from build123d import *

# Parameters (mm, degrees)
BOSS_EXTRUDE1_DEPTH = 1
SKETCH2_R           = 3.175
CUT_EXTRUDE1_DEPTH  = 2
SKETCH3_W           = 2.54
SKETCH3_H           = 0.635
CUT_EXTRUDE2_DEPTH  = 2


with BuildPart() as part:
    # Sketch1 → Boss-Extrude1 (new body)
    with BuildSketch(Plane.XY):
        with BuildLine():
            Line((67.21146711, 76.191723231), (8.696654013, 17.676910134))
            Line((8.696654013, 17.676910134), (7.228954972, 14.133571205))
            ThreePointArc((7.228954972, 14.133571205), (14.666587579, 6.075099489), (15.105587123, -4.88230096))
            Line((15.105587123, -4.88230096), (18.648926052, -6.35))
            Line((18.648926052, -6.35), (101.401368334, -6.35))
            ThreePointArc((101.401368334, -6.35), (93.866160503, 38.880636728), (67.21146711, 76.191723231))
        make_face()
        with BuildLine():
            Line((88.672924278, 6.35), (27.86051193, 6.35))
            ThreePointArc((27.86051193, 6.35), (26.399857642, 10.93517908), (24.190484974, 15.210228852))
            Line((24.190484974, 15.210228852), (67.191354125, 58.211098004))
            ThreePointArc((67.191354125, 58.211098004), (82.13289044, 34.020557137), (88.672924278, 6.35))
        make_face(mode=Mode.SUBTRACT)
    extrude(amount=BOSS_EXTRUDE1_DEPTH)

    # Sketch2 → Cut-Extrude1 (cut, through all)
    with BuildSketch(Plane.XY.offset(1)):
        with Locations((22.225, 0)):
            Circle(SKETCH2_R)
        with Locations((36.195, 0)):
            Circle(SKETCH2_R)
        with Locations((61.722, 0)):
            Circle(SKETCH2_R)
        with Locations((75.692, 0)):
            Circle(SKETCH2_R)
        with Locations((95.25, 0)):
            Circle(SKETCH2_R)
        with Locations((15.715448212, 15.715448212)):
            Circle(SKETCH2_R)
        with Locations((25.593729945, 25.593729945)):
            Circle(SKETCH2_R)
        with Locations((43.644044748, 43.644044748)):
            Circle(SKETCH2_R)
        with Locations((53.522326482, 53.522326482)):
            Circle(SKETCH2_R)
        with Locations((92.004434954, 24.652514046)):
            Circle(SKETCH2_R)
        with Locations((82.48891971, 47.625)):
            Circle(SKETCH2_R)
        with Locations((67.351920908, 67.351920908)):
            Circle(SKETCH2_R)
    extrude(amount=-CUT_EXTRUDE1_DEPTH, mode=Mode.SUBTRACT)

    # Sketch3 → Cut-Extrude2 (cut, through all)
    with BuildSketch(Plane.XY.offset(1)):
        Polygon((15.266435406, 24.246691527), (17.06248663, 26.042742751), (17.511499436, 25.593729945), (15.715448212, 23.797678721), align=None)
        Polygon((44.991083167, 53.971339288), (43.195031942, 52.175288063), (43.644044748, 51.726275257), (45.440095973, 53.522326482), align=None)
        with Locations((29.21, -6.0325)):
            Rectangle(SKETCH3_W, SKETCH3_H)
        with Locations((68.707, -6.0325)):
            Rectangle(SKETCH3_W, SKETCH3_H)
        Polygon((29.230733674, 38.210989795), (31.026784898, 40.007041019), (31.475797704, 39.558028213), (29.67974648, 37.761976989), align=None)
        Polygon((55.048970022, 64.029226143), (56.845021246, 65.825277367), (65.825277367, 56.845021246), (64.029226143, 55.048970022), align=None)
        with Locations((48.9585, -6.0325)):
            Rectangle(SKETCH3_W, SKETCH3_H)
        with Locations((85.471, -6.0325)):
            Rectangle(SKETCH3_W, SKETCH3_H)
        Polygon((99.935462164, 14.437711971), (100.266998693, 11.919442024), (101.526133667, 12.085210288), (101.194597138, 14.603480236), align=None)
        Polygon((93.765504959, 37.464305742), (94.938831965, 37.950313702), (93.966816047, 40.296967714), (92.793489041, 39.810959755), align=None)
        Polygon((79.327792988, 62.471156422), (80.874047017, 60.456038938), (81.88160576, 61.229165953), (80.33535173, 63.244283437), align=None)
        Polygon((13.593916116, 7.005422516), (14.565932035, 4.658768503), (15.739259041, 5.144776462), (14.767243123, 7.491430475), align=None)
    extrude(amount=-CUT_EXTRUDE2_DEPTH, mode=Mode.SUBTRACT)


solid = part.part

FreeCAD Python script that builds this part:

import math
import FreeCAD as App
import Part
import Sketcher
Q = App.Units.Quantity


def add_polygon(sketch, points):
    """Adds a closed chain of lines whose ends are joined by coincident constraints."""
    first, n = sketch.GeometryCount, len(points)
    for a, b in zip(points, points[1:] + points[:1]):
        sketch.addGeometry(Part.LineSegment(App.Vector(*a, 0), App.Vector(*b, 0)), False)
    for i in range(n):
        sketch.addConstraint(Sketcher.Constraint("Coincident", first + i, 2, first + (i + 1) % n, 1))

doc = App.newDocument("Part")
params = doc.addObject("Spreadsheet::Sheet", "Params")
for row, (alias, value) in enumerate([
    ("sketch1_radius", "4 in"),
    ("sketch1_radius2", "3.5 in"),
    ("sketch1_radius3", "0.625 in"),
    ("sketch1_radius4", "1.125 in"),
    ("pad1_length", "1 mm"),
    ("sketch2_diameter", "0.25 in"),
    ("sketch3_width", "0.1 in"),
    ("sketch3_length", "0.1 in"),
    ("sketch3_length2", "0.5 in"),
    ("sketch3_length3", "0.05 in"),
    ("sketch3_height", "0.025 in"),
], start=1):
    params.set(f"A{row}", alias)
    params.set(f"B{row}", "=" + value)
    params.setAlias(f"B{row}", alias)

body = doc.addObject("PartDesign::Body", "Body")

sketch1 = body.newObject("Sketcher::SketchObject", "Sketch")
sketch1.AttachmentSupport = (doc.getObject("XY_Plane"), [""])
sketch1.MapMode = "FlatFace"
sketch1.addGeometry(Part.LineSegment(App.Vector(67.211467, 76.191723, 0), App.Vector(8.696654, 17.67691, 0)), False)
sketch1.addGeometry(Part.LineSegment(App.Vector(8.696654, 17.67691, 0), App.Vector(7.228955, 14.133571, 0)), False)
sketch1.addGeometry(Part.ArcOfCircle(Part.Circle(App.Vector(0, 0, 0), App.Vector(0, 0, 1), 15.875), math.radians(-17.911434), math.radians(62.911434)), False)
sketch1.addGeometry(Part.LineSegment(App.Vector(15.105587, -4.882301, 0), App.Vector(18.648926, -6.35, 0)), False)
sketch1.addGeometry(Part.LineSegment(App.Vector(18.648926, -6.35, 0), App.Vector(101.401368, -6.35, 0)), False)
sketch1.addGeometry(Part.ArcOfCircle(Part.Circle(App.Vector(0, 0, 0), App.Vector(0, 0, 1), 101.6), math.radians(-3.583322), math.radians(48.583322)), False)
sketch1.addGeometry(Part.ArcOfCircle(Part.Circle(App.Vector(0, 0, 0), App.Vector(0, 0, 1), 88.9), math.radians(4.096044), math.radians(40.903956)), False)
sketch1.addGeometry(Part.LineSegment(App.Vector(88.672924, 6.35, 0), App.Vector(27.860512, 6.35, 0)), False)
sketch1.addGeometry(Part.ArcOfCircle(Part.Circle(App.Vector(0, 0, 0), App.Vector(0, 0, 1), 28.575), math.radians(12.839588), math.radians(32.160412)), False)
sketch1.addGeometry(Part.LineSegment(App.Vector(24.190485, 15.210229, 0), App.Vector(67.191354, 58.211098, 0)), False)
sketch1.addConstraint(Sketcher.Constraint("Coincident", 0, 2, 1, 1))
sketch1.addConstraint(Sketcher.Constraint("Coincident", 1, 2, 2, 2))
sketch1.addConstraint(Sketcher.Constraint("Coincident", 2, 1, 3, 1))
sketch1.addConstraint(Sketcher.Constraint("Coincident", 3, 2, 4, 1))
sketch1.addConstraint(Sketcher.Constraint("Coincident", 4, 2, 5, 1))
sketch1.addConstraint(Sketcher.Constraint("Coincident", 5, 2, 0, 1))
sketch1.addConstraint(Sketcher.Constraint("Coincident", 6, 1, 7, 1))
sketch1.addConstraint(Sketcher.Constraint("Coincident", 7, 2, 8, 1))
sketch1.addConstraint(Sketcher.Constraint("Coincident", 8, 2, 9, 1))
sketch1.addConstraint(Sketcher.Constraint("Coincident", 9, 2, 6, 2))
sketch1.addConstraint(Sketcher.Constraint("Horizontal", 4))
sketch1.addConstraint(Sketcher.Constraint("Horizontal", 7))
sketch1.addConstraint(Sketcher.Constraint("Coincident", 2, 3, -1, 1))
sketch1.addConstraint(Sketcher.Constraint("Coincident", 5, 3, -1, 1))
sketch1.addConstraint(Sketcher.Constraint("Coincident", 6, 3, -1, 1))
sketch1.addConstraint(Sketcher.Constraint("Coincident", 8, 3, -1, 1))
sketch1.addConstraint(Sketcher.Constraint("Perpendicular", 1, 3))
sketch1.addConstraint(Sketcher.Constraint("Parallel", 0, 9))
sketch1.addConstraint(Sketcher.Constraint("Equal", 1, 3))
sketch1.addConstraint(Sketcher.Constraint("Radius", 5, Q("4 in")))
sketch1.addConstraint(Sketcher.Constraint("Radius", 6, Q("3.5 in")))
sketch1.addConstraint(Sketcher.Constraint("Angle", 0, Q("-135 deg")))
sketch1.addConstraint(Sketcher.Constraint("Radius", 2, Q("0.625 in")))
sketch1.addConstraint(Sketcher.Constraint("Radius", 8, Q("1.125 in")))
sketch1.addConstraint(Sketcher.Constraint("Angle", 1, Q("-112.5 deg")))
sketch1.addConstraint(Sketcher.Constraint("DistanceY", 4, 2, 6, 1, Q("0.5 in")))
sketch1.addConstraint(Sketcher.Constraint("DistanceY", 3, 2, -1, 1, Q("0.25 in")))
sketch1.addConstraint(Sketcher.Constraint("DistanceY", 2, 1, -1, 1, 4.882301))
sketch1.addConstraint(Sketcher.Constraint("DistanceY", -1, 1, 9, 2, 58.211098))
sketch1.addConstraint(Sketcher.Constraint("DistanceX", 5, 2, 4, 2, 34.189901))
sketch1.setExpression("Constraints[19]", "Params.sketch1_radius")
sketch1.setExpression("Constraints[20]", "Params.sketch1_radius2")
sketch1.setExpression("Constraints[22]", "Params.sketch1_radius3")
sketch1.setExpression("Constraints[23]", "Params.sketch1_radius4")
pad1 = body.newObject("PartDesign::Pad", "Pad")
pad1.Profile = sketch1
pad1.setExpression("Length", "Params.pad1_length")

sketch2 = body.newObject("Sketcher::SketchObject", "Sketch001")
sketch2.AttachmentSupport = (doc.getObject("XY_Plane"), [""])
sketch2.MapMode = "FlatFace"
sketch2.AttachmentOffset = App.Placement(App.Vector(0, 0, 1), App.Rotation())
sketch2.addGeometry(Part.Circle(App.Vector(22.225, 0, 0), App.Vector(0, 0, 1), 3.175), False)
sketch2.addGeometry(Part.Circle(App.Vector(36.195, 0, 0), App.Vector(0, 0, 1), 3.175), False)
sketch2.addGeometry(Part.Circle(App.Vector(61.722, 0, 0), App.Vector(0, 0, 1), 3.175), False)
sketch2.addGeometry(Part.Circle(App.Vector(75.692, 0, 0), App.Vector(0, 0, 1), 3.175), False)
sketch2.addGeometry(Part.Circle(App.Vector(95.25, 0, 0), App.Vector(0, 0, 1), 3.175), False)
sketch2.addGeometry(Part.Circle(App.Vector(15.715448, 15.715448, 0), App.Vector(0, 0, 1), 3.175), False)
sketch2.addGeometry(Part.Circle(App.Vector(25.59373, 25.59373, 0), App.Vector(0, 0, 1), 3.175), False)
sketch2.addGeometry(Part.Circle(App.Vector(43.644045, 43.644045, 0), App.Vector(0, 0, 1), 3.175), False)
sketch2.addGeometry(Part.Circle(App.Vector(53.522326, 53.522326, 0), App.Vector(0, 0, 1), 3.175), False)
sketch2.addGeometry(Part.Circle(App.Vector(92.004435, 24.652514, 0), App.Vector(0, 0, 1), 3.175), False)
sketch2.addGeometry(Part.Circle(App.Vector(82.48892, 47.625, 0), App.Vector(0, 0, 1), 3.175), False)
sketch2.addGeometry(Part.Circle(App.Vector(67.351921, 67.351921, 0), App.Vector(0, 0, 1), 3.175), False)
sketch2.addConstraint(Sketcher.Constraint("Equal", 0, 1))
sketch2.addConstraint(Sketcher.Constraint("Equal", 1, 2))
sketch2.addConstraint(Sketcher.Constraint("Equal", 2, 3))
sketch2.addConstraint(Sketcher.Constraint("Equal", 3, 4))
sketch2.addConstraint(Sketcher.Constraint("Equal", 4, 5))
sketch2.addConstraint(Sketcher.Constraint("Equal", 5, 6))
sketch2.addConstraint(Sketcher.Constraint("Equal", 6, 7))
sketch2.addConstraint(Sketcher.Constraint("Equal", 7, 8))
sketch2.addConstraint(Sketcher.Constraint("Equal", 8, 9))
sketch2.addConstraint(Sketcher.Constraint("Equal", 9, 10))
sketch2.addConstraint(Sketcher.Constraint("Equal", 10, 11))
sketch2.addConstraint(Sketcher.Constraint("PointOnObject", 0, 3, -1))
sketch2.addConstraint(Sketcher.Constraint("PointOnObject", 1, 3, -1))
sketch2.addConstraint(Sketcher.Constraint("PointOnObject", 2, 3, -1))
sketch2.addConstraint(Sketcher.Constraint("PointOnObject", 3, 3, -1))
sketch2.addConstraint(Sketcher.Constraint("PointOnObject", 4, 3, -1))
sketch2.addConstraint(Sketcher.Constraint("Diameter", 0, Q("0.25 in")))
sketch2.addConstraint(Sketcher.Constraint("DistanceX", -1, 1, 2, 3, Q("2.43 in")))
sketch2.addConstraint(Sketcher.Constraint("DistanceX", -1, 1, 3, 3, Q("2.98 in")))
sketch2.addConstraint(Sketcher.Constraint("DistanceX", -1, 1, 4, 3, Q("3.75 in")))
sketch2.addConstraint(Sketcher.Constraint("DistanceX", 0, 3, 1, 3, Q("0.55 in")))
sketch2.addConstraint(Sketcher.Constraint("DistanceX", -1, 1, 0, 3, Q("0.875 in")))
sketch2.addConstraint(Sketcher.Constraint("DistanceY", -1, 1, 10, 3, Q("1.875 in")))
sketch2.addConstraint(Sketcher.Constraint("DistanceX", 11, 3, 10, 3, 15.136999))
sketch2.addConstraint(Sketcher.Constraint("DistanceX", -1, 1, 5, 3, 15.715448))
sketch2.addConstraint(Sketcher.Constraint("DistanceY", -1, 1, 5, 3, 15.715448))
sketch2.addConstraint(Sketcher.Constraint("DistanceX", -1, 1, 6, 3, 25.59373))
sketch2.addConstraint(Sketcher.Constraint("DistanceY", -1, 1, 6, 3, 25.59373))
sketch2.addConstraint(Sketcher.Constraint("DistanceX", -1, 1, 10, 3, 82.48892))
sketch2.addConstraint(Sketcher.Constraint("DistanceY", -1, 1, 11, 3, 67.351921))
sketch2.addConstraint(Sketcher.Constraint("DistanceX", 7, 3, 8, 3, 9.878282))
sketch2.addConstraint(Sketcher.Constraint("DistanceY", 7, 3, 8, 3, 9.878282))
sketch2.addConstraint(Sketcher.Constraint("DistanceX", 5, 3, 8, 3, 37.806878))
sketch2.addConstraint(Sketcher.Constraint("DistanceY", 5, 3, 8, 3, 37.806878))
sketch2.addConstraint(Sketcher.Constraint("DistanceX", 8, 3, 9, 3, 38.482108))
sketch2.addConstraint(Sketcher.Constraint("DistanceY", 9, 3, 7, 3, 18.991531))
sketch2.setExpression("Constraints[16]", "Params.sketch2_diameter")
pocket1 = body.newObject("PartDesign::Pocket", "Pocket")
pocket1.Profile = sketch2
pocket1.Type = "ThroughAll"

sketch3 = body.newObject("Sketcher::SketchObject", "Sketch002")
sketch3.AttachmentSupport = (doc.getObject("XY_Plane"), [""])
sketch3.MapMode = "FlatFace"
sketch3.AttachmentOffset = App.Placement(App.Vector(0, 0, 1), App.Rotation())
add_polygon(sketch3, [(17.062487, 26.042743), (15.266435, 24.246692), (15.715448, 23.797679), (17.511499, 25.59373)])
add_polygon(sketch3, [(44.991083, 53.971339), (43.195032, 52.175288), (43.644045, 51.726275), (45.440096, 53.522326)])
add_polygon(sketch3, [(27.94, -5.715), (27.94, -6.35), (30.48, -6.35), (30.48, -5.715)])
add_polygon(sketch3, [(67.437, -5.715), (67.437, -6.35), (69.977, -6.35), (69.977, -5.715)])
add_polygon(sketch3, [(31.026785, 40.007041), (29.230734, 38.21099), (29.679746, 37.761977), (31.475798, 39.558028)])
add_polygon(sketch3, [(56.845021, 65.825277), (55.04897, 64.029226), (64.029226, 55.04897), (65.825277, 56.845021)])
add_polygon(sketch3, [(47.6885, -5.715), (47.6885, -6.35), (50.2285, -6.35), (50.2285, -5.715)])
add_polygon(sketch3, [(84.201, -5.715), (84.201, -6.35), (86.741, -6.35), (86.741, -5.715)])
add_polygon(sketch3, [(99.935462, 14.437712), (100.266999, 11.919442), (101.526134, 12.08521), (101.194597, 14.60348)])
add_polygon(sketch3, [(93.765505, 37.464306), (94.938832, 37.950314), (93.966816, 40.296968), (92.793489, 39.81096)])
add_polygon(sketch3, [(79.327793, 62.471156), (80.874047, 60.456039), (81.881606, 61.229166), (80.335352, 63.244283)])
add_polygon(sketch3, [(13.593916, 7.005423), (14.565932, 4.658769), (15.739259, 5.144776), (14.767243, 7.49143)])
sketch3.addConstraint(Sketcher.Constraint("Vertical", 8))
sketch3.addConstraint(Sketcher.Constraint("Horizontal", 9))
sketch3.addConstraint(Sketcher.Constraint("Vertical", 10))
sketch3.addConstraint(Sketcher.Constraint("Horizontal", 11))
sketch3.addConstraint(Sketcher.Constraint("Vertical", 12))
sketch3.addConstraint(Sketcher.Constraint("Horizontal", 13))
sketch3.addConstraint(Sketcher.Constraint("Vertical", 14))
sketch3.addConstraint(Sketcher.Constraint("Horizontal", 15))
sketch3.addConstraint(Sketcher.Constraint("Vertical", 24))
sketch3.addConstraint(Sketcher.Constraint("Horizontal", 25))
sketch3.addConstraint(Sketcher.Constraint("Vertical", 26))
sketch3.addConstraint(Sketcher.Constraint("Horizontal", 27))
sketch3.addConstraint(Sketcher.Constraint("Vertical", 28))
sketch3.addConstraint(Sketcher.Constraint("Horizontal", 29))
sketch3.addConstraint(Sketcher.Constraint("Vertical", 30))
sketch3.addConstraint(Sketcher.Constraint("Horizontal", 31))
sketch3.addConstraint(Sketcher.Constraint("Perpendicular", 0, 1))
sketch3.addConstraint(Sketcher.Constraint("Perpendicular", 1, 2))
sketch3.addConstraint(Sketcher.Constraint("Perpendicular", 2, 3))
sketch3.addConstraint(Sketcher.Constraint("Perpendicular", 3, 4))
sketch3.addConstraint(Sketcher.Constraint("Perpendicular", 4, 5))
sketch3.addConstraint(Sketcher.Constraint("Perpendicular", 5, 6))
sketch3.addConstraint(Sketcher.Constraint("Perpendicular", 6, 7))
sketch3.addConstraint(Sketcher.Constraint("Perpendicular", 7, 16))
sketch3.addConstraint(Sketcher.Constraint("Perpendicular", 16, 17))
sketch3.addConstraint(Sketcher.Constraint("Perpendicular", 17, 18))
sketch3.addConstraint(Sketcher.Constraint("Perpendicular", 18, 19))
sketch3.addConstraint(Sketcher.Constraint("Perpendicular", 19, 20))
sketch3.addConstraint(Sketcher.Constraint("Perpendicular", 20, 21))
sketch3.addConstraint(Sketcher.Constraint("Perpendicular", 21, 22))
sketch3.addConstraint(Sketcher.Constraint("Perpendicular", 22, 23))
sketch3.addConstraint(Sketcher.Constraint("Perpendicular", 32, 33))
sketch3.addConstraint(Sketcher.Constraint("Perpendicular", 33, 34))
sketch3.addConstraint(Sketcher.Constraint("Perpendicular", 34, 35))
sketch3.addConstraint(Sketcher.Constraint("Perpendicular", 36, 37))
sketch3.addConstraint(Sketcher.Constraint("Perpendicular", 37, 38))
sketch3.addConstraint(Sketcher.Constraint("Perpendicular", 38, 39))
sketch3.addConstraint(Sketcher.Constraint("Perpendicular", 40, 41))
sketch3.addConstraint(Sketcher.Constraint("Perpendicular", 41, 42))
sketch3.addConstraint(Sketcher.Constraint("Perpendicular", 42, 43))
sketch3.addConstraint(Sketcher.Constraint("Parallel", 39, 44))
sketch3.addConstraint(Sketcher.Constraint("Perpendicular", 44, 45))
sketch3.addConstraint(Sketcher.Constraint("Perpendicular", 45, 46))
sketch3.addConstraint(Sketcher.Constraint("Perpendicular", 46, 47))
sketch3.addConstraint(Sketcher.Constraint("Horizontal", 9, 2, 12, 2))
sketch3.addConstraint(Sketcher.Constraint("Horizontal", 11, 2, 14, 2))
sketch3.addConstraint(Sketcher.Constraint("Horizontal", 13, 2, 24, 2))
sketch3.addConstraint(Sketcher.Constraint("Horizontal", 15, 2, 26, 2))
sketch3.addConstraint(Sketcher.Constraint("Horizontal", 25, 2, 28, 2))
sketch3.addConstraint(Sketcher.Constraint("Horizontal", 27, 2, 30, 2))
sketch3.addConstraint(Sketcher.Constraint("Equal", 11, 13))
sketch3.addConstraint(Sketcher.Constraint("Equal", 15, 25))
sketch3.addConstraint(Sketcher.Constraint("Equal", 27, 29))
sketch3.addConstraint(Sketcher.Constraint("Equal", 2, 4))
sketch3.addConstraint(Sketcher.Constraint("Equal", 3, 5))
sketch3.addConstraint(Sketcher.Constraint("Equal", 6, 16))
sketch3.addConstraint(Sketcher.Constraint("Equal", 7, 17))
sketch3.addConstraint(Sketcher.Constraint("Equal", 18, 20))
sketch3.addConstraint(Sketcher.Constraint("Equal", 22, 32))
sketch3.addConstraint(Sketcher.Constraint("Equal", 35, 36))
sketch3.addConstraint(Sketcher.Constraint("Equal", 34, 37))
sketch3.addConstraint(Sketcher.Constraint("Equal", 39, 40))
sketch3.addConstraint(Sketcher.Constraint("Equal", 38, 41))
sketch3.addConstraint(Sketcher.Constraint("Equal", 42, 44))
sketch3.addConstraint(Sketcher.Constraint("Equal", 43, 45))
sketch3.addConstraint(Sketcher.Constraint("DistanceX", 9, 1, 9, 2, Q("0.1 in")))
sketch3.addConstraint(Sketcher.Constraint("Angle", 0, Q("-135 deg")))
sketch3.addConstraint(Sketcher.Constraint("Distance", 0, Q("0.1 in")))
sketch3.addConstraint(Sketcher.Constraint("Distance", 21, Q("0.5 in")))
sketch3.addConstraint(Sketcher.Constraint("DistanceX", -1, 1, 8, 2, Q("1.1 in")))
sketch3.addConstraint(Sketcher.Constraint("Angle", 32, Q("-82.5 deg")))
sketch3.addConstraint(Sketcher.Constraint("Angle", 36, Q("22.5 deg")))
sketch3.addConstraint(Sketcher.Constraint("Angle", 40, Q("-52.5 deg")))
sketch3.addConstraint(Sketcher.Constraint("Distance", 33, Q("0.05 in")))
sketch3.addConstraint(Sketcher.Constraint("DistanceY", 8, 2, 8, 1, Q("0.025 in")))
sketch3.addConstraint(Sketcher.Constraint("DistanceY", 8, 2, -1, 1, Q("0.25 in")))
sketch3.addConstraint(Sketcher.Constraint("DistanceX", 13, 2, 28, 2, Q("0.56 in")))
sketch3.addConstraint(Sketcher.Constraint("Distance", 1, Q("0.025 in")))
sketch3.addConstraint(Sketcher.Constraint("DistanceX", -1, 1, 12, 2, Q("2.655 in")))
sketch3.addConstraint(Sketcher.Constraint("DistanceX", -1, 1, 24, 2, Q("1.8775 in")))
sketch3.addConstraint(Sketcher.Constraint("DistanceX", -1, 1, 2, 2, 17.511499))
sketch3.addConstraint(Sketcher.Constraint("DistanceX", -1, 1, 32, 2, 100.266999))
sketch3.addConstraint(Sketcher.Constraint("DistanceX", 16, 2, 4, 2, 13.964298))
sketch3.addConstraint(Sketcher.Constraint("DistanceY", 16, 2, 4, 2, 13.964298))
sketch3.addConstraint(Sketcher.Constraint("DistanceX", 0, 2, 16, 2, 13.964298))
sketch3.addConstraint(Sketcher.Constraint("DistanceY", 0, 2, 16, 2, 13.964298))
sketch3.addConstraint(Sketcher.Constraint("DistanceY", 6, 2, 20, 2, 10.5069))
sketch3.addConstraint(Sketcher.Constraint("DistanceY", 35, 2, 36, 2, 23.512602))
sketch3.addConstraint(Sketcher.Constraint("DistanceX", 36, 2, 33, 2, 6.587302))
sketch3.addConstraint(Sketcher.Constraint("DistanceY", 37, 2, 41, 2, 20.932198))
sketch3.addConstraint(Sketcher.Constraint("DistanceY", 46, 2, 2, 2, 18.102299))
sketch3.addConstraint(Sketcher.Constraint("DistanceY", -1, 1, 0, 2, 24.246692))
sketch3.addConstraint(Sketcher.Constraint("DistanceX", -1, 1, 20, 2, 55.04897))
sketch3.addConstraint(Sketcher.Constraint("DistanceY", -1, 1, 33, 2, 12.08521))
sketch3.addConstraint(Sketcher.Constraint("DistanceX", -1, 1, 42, 2, 80.335352))
sketch3.addConstraint(Sketcher.Constraint("DistanceX", -1, 1, 45, 2, 15.739259))
sketch3.setExpression("Constraints[113]", "Params.sketch3_width")
sketch3.setExpression("Constraints[115]", "Params.sketch3_length")
sketch3.setExpression("Constraints[116]", "Params.sketch3_length2")
sketch3.setExpression("Constraints[121]", "Params.sketch3_length3")
sketch3.setExpression("Constraints[122]", "Params.sketch3_height")
pocket2 = body.newObject("PartDesign::Pocket", "Pocket001")
pocket2.Profile = sketch3
pocket2.Type = "ThroughAll"

doc.recompute()
